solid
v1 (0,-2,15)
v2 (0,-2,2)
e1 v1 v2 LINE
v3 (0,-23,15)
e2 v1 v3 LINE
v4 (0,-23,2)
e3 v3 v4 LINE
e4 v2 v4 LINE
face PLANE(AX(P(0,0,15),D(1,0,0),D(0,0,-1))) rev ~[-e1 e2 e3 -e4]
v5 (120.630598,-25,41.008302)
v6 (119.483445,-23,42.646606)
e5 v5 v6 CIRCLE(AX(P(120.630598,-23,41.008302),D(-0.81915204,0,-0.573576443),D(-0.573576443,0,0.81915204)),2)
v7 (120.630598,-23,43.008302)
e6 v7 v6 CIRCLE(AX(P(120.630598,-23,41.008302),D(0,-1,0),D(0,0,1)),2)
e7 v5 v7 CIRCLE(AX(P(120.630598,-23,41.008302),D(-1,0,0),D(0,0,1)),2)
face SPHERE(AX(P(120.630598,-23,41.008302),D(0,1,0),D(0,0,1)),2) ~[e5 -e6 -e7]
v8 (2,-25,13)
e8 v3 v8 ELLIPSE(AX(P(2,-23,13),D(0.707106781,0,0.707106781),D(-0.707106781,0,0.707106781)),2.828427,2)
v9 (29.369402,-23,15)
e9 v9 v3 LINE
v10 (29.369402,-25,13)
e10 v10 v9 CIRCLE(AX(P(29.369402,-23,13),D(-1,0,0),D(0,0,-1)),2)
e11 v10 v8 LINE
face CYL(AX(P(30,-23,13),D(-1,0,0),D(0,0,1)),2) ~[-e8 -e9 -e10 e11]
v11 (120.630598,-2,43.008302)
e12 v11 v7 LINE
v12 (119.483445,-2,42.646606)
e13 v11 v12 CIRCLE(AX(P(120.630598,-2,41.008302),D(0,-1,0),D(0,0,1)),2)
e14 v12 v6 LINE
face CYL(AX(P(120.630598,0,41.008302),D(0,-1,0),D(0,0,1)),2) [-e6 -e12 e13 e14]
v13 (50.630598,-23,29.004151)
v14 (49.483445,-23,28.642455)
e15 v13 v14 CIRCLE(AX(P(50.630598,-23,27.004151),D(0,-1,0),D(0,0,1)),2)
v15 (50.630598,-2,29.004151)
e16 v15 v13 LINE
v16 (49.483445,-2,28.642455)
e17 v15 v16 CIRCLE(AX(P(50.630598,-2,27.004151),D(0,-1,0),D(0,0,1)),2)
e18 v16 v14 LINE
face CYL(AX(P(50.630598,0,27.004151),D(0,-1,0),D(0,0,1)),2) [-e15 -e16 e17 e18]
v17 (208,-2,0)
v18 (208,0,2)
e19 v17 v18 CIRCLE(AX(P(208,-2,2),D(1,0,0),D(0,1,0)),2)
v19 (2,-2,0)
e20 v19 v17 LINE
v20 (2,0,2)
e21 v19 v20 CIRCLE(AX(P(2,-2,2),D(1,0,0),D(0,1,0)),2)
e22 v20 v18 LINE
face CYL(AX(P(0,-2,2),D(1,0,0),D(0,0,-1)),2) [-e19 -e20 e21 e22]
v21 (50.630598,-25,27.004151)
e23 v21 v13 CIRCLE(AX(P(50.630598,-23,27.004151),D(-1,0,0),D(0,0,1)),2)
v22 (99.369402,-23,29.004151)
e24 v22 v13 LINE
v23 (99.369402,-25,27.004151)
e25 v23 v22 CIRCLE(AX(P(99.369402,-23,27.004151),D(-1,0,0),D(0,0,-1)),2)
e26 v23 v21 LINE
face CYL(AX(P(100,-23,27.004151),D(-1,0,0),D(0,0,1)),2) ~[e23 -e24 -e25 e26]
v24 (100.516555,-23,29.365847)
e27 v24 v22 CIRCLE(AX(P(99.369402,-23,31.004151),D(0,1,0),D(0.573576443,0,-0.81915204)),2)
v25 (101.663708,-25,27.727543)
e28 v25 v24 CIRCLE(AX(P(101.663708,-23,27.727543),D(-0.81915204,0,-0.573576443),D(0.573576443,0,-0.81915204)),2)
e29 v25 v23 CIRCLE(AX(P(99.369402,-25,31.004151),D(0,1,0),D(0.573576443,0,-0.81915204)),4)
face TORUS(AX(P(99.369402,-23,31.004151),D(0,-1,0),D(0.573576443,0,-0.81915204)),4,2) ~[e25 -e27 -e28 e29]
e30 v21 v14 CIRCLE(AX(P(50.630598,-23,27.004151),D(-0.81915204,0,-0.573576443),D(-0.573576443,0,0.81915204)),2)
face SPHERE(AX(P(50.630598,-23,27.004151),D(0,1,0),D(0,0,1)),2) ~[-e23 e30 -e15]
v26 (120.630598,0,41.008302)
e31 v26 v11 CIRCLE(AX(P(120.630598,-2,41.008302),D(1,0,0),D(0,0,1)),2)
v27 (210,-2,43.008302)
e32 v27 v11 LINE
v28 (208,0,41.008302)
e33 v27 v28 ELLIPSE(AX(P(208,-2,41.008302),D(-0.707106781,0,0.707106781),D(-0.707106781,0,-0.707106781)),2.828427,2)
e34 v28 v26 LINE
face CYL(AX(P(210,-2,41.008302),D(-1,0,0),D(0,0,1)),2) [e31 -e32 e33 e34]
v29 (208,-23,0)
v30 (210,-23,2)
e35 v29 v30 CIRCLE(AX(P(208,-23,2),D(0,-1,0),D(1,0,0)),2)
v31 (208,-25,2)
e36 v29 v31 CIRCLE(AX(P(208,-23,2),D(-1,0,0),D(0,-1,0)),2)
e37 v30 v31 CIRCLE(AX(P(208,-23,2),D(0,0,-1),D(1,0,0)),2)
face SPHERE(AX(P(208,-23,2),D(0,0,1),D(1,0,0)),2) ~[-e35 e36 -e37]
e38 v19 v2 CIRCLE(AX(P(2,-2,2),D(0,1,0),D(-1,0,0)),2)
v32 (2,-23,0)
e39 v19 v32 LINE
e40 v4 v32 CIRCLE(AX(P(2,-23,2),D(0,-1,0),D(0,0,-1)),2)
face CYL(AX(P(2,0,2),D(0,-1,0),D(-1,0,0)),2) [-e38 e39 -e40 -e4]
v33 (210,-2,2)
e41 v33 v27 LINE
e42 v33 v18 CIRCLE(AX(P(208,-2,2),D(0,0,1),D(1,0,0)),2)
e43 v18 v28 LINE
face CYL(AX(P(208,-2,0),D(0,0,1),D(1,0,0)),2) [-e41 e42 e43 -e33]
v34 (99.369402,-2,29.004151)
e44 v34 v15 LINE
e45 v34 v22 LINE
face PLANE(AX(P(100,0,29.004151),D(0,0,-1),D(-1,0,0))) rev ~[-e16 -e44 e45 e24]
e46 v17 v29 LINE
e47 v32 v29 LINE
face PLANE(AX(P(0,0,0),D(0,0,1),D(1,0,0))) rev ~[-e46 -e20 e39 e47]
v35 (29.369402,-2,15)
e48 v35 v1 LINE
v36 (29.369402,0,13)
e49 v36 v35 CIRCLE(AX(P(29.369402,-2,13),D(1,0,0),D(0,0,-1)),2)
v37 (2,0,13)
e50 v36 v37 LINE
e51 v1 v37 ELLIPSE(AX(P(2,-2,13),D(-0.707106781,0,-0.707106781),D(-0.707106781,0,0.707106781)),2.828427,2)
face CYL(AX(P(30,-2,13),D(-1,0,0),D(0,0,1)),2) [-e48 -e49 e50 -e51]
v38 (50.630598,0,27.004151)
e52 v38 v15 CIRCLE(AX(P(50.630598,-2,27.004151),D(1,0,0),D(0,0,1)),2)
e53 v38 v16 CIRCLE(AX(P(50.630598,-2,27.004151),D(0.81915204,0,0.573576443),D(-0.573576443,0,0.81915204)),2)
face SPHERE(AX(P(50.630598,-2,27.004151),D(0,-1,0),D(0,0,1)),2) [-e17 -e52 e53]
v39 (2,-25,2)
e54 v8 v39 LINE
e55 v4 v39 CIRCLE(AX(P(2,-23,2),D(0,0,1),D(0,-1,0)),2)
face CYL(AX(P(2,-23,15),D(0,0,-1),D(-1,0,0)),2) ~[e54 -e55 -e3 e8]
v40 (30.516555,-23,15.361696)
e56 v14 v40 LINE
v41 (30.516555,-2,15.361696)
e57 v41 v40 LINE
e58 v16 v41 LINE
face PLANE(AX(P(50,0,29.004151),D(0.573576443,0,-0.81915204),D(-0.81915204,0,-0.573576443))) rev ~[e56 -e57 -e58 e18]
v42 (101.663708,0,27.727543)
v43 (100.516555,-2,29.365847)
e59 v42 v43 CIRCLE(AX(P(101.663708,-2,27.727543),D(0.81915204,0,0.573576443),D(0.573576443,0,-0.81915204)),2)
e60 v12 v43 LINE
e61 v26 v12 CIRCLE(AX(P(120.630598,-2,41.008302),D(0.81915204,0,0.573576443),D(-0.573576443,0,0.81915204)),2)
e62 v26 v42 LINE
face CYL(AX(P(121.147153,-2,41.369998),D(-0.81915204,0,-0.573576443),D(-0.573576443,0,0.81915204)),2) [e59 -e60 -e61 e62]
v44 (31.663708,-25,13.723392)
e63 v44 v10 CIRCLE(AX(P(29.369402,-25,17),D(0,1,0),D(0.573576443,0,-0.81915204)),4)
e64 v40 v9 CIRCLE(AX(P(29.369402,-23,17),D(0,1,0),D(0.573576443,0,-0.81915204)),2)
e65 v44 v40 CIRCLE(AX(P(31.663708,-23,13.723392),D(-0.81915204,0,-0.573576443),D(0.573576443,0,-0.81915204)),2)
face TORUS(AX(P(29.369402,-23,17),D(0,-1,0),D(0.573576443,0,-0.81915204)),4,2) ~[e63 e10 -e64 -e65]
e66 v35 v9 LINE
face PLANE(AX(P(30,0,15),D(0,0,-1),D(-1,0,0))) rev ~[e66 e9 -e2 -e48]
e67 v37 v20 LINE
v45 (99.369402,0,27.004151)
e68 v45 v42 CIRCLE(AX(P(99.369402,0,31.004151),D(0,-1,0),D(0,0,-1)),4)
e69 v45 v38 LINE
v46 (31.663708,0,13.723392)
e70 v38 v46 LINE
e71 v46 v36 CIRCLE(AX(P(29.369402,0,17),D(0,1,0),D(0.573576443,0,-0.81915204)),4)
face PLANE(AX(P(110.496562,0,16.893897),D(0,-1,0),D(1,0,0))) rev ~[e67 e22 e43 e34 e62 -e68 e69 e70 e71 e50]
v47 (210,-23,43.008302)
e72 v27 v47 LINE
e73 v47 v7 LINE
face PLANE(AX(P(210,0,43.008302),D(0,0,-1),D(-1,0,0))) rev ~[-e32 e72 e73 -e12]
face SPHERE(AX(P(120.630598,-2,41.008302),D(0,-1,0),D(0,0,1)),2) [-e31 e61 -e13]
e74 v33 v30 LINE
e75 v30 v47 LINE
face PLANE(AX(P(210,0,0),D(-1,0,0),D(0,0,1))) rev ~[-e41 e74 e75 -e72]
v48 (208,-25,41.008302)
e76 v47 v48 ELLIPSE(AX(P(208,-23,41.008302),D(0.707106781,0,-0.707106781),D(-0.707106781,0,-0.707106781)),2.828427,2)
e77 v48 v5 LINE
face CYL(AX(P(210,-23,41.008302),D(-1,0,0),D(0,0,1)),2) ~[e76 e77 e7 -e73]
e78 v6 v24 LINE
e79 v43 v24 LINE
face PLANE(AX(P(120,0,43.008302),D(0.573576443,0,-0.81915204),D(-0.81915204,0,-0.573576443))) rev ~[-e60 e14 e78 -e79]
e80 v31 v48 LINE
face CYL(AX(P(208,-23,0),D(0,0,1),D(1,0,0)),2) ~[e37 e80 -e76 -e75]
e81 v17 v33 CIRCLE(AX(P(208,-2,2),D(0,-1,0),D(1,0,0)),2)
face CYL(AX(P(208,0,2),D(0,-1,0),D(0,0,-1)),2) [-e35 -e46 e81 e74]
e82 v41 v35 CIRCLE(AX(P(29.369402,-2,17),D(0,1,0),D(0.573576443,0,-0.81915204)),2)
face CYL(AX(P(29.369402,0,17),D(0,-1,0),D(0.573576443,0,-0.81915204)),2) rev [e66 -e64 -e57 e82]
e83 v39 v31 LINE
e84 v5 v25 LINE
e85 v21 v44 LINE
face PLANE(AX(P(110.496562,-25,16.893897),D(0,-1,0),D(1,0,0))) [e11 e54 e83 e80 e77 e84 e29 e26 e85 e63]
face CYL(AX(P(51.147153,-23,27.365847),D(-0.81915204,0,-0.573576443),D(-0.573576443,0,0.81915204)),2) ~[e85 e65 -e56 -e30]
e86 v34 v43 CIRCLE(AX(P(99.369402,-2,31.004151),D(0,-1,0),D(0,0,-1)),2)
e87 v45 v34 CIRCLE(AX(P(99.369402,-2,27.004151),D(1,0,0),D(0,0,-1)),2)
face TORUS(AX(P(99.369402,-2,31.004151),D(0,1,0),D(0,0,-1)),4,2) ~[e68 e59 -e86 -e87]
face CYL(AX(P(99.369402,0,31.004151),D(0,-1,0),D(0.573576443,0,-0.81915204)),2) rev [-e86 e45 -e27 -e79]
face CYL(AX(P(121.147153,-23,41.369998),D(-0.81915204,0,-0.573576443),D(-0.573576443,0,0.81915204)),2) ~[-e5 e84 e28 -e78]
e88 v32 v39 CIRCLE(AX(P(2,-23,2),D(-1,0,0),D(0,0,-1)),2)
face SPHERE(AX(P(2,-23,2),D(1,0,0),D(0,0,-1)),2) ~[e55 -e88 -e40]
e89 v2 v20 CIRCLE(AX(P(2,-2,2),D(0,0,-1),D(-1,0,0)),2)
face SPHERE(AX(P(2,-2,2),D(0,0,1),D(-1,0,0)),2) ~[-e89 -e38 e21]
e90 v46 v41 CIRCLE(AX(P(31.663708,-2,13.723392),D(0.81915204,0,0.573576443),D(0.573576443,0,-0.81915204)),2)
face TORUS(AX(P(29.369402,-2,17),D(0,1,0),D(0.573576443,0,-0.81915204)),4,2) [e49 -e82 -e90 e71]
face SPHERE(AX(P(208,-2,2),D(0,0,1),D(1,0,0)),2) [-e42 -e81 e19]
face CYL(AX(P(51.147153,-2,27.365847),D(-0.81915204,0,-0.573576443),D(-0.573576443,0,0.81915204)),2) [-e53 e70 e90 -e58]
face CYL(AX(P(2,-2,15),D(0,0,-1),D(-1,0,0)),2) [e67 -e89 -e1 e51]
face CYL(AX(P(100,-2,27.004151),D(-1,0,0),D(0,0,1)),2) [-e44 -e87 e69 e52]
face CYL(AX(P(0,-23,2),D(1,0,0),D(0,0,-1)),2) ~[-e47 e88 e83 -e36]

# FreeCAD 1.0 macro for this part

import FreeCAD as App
import Part
import Sketcher
Q = App.Units.Quantity


def edges_at(feature, points):
    """Names of the edges that pass closest to the given points."""
    edges = feature.Shape.Edges
    near = lambda p: min(range(len(edges)), key=lambda i: edges[i].distToShape(Part.Vertex(*p))[0])
    return sorted({f"Edge{near(p) + 1}" for p in points})


def add_polygon(sketch, points):
    """Adds a closed chain of lines whose ends are joined by coincident constraints."""
    first, n = sketch.GeometryCount, len(points)
    for a, b in zip(points, points[1:] + points[:1]):
        sketch.addGeometry(Part.LineSegment(App.Vector(*a, 0), App.Vector(*b, 0)), False)
    for i in range(n):
        sketch.addConstraint(Sketcher.Constraint("Coincident", first + i, 2, first + (i + 1) % n, 1))

doc = App.newDocument("Part")
params = doc.addObject("Spreadsheet::Sheet", "Params")
for row, (alias, value) in enumerate([
    ("sketch1_width", "210 mm"),
    ("sketch1_width2", "90 mm"),
    ("sketch1_width3", "50 mm"),
    ("sketch1_width4", "30 mm"),
    ("sketch1_height", "15 mm"),
    ("pad1_length", "25 mm"),
    ("fillet_radius", "2 mm"),
], start=1):
    params.set(f"A{row}", alias)
    params.set(f"B{row}", "=" + value)
    params.setAlias(f"B{row}", alias)

body = doc.addObject("PartDesign::Body", "Body")

# Sketch on XZ plane
sketch1 = doc.addObject("Sketcher::SketchObject", "Sketch")
body.addObject(sketch1)
sketch1.AttachmentSupport = (doc.XZ_Plane, [""])
sketch1.MapMode = "FlatFace"
add_polygon(sketch1, [(0, 15), (0, 0), (210, 0), (210, 43.008302), (120, 43.008302), (100, 29.004151), (50, 29.004151), (30, 15)])  # lines 0-7
sketch1.addConstraint(Sketcher.Constraint("Vertical", 0))
sketch1.addConstraint(Sketcher.Constraint("Horizontal", 1))
sketch1.addConstraint(Sketcher.Constraint("Vertical", 2))
sketch1.addConstraint(Sketcher.Constraint("Horizontal", 3))
sketch1.addConstraint(Sketcher.Constraint("Horizontal", 5))
sketch1.addConstraint(Sketcher.Constraint("Horizontal", 7))
sketch1.addConstraint(Sketcher.Constraint("Coincident", 0, 2, -1, 1))
sketch1.addConstraint(Sketcher.Constraint("Parallel", 4, 6))
sketch1.addConstraint(Sketcher.Constraint("Equal", 4, 6))
sketch1.addConstraint(Sketcher.Constraint("DistanceX", 1, 1, 1, 2, 210.0))
sketch1.addConstraint(Sketcher.Constraint("DistanceX", 3, 2, 3, 1, 90.0))
sketch1.addConstraint(Sketcher.Constraint("DistanceX", 5, 2, 5, 1, 50.0))
sketch1.addConstraint(Sketcher.Constraint("DistanceX", 7, 2, 7, 1, 30.0))
sketch1.addConstraint(Sketcher.Constraint("DistanceY", 0, 2, 0, 1, 15.0))
sketch1.addConstraint(Sketcher.Constraint("Angle", 4, Q("-145 deg")))
sketch1.setExpression("Constraints[17]", "Params.sketch1_width")
sketch1.setExpression("Constraints[18]", "Params.sketch1_width2")
sketch1.setExpression("Constraints[19]", "Params.sketch1_width3")
sketch1.setExpression("Constraints[20]", "Params.sketch1_width4")
sketch1.setExpression("Constraints[21]", "Params.sketch1_height")
pad1 = doc.addObject("PartDesign::Pad", "Pad")
body.addObject(pad1)
pad1.Profile = sketch1
pad1.setExpression("Length", "Params.pad1_length")
doc.recompute()

fillet = doc.addObject("PartDesign::Fillet", "Fillet")
body.addObject(fillet)
fillet.Base = (pad1, edges_at(pad1, [
    (165, -25, 43.008),
    (165, 0, 43.008),
    (210, -25, 21.504),
    (210, 0, 21.504),
    (210, -12.5, 0),
    (105, -25, 0),
    (110, -25, 36.006),
    (75, -25, 29.004),
    (40, -25, 22.002),
    (15, -25, 15),
    (15, 0, 15),
    (30, -12.5, 15),
    (40, 0, 22.002),
    (50, -12.5, 29.004),
    (75, 0, 29.004),
    (110, 0, 36.006),
    (100, -12.5, 29.004),
    (120, -12.5, 43.008),
    (0, 0, 7.5),
    (0, -12.5, 0),
    (0, -25, 7.5),
    (105, 0, 0),
]))
fillet.setExpression("Radius", "Params.fillet_radius")

doc.recompute()
